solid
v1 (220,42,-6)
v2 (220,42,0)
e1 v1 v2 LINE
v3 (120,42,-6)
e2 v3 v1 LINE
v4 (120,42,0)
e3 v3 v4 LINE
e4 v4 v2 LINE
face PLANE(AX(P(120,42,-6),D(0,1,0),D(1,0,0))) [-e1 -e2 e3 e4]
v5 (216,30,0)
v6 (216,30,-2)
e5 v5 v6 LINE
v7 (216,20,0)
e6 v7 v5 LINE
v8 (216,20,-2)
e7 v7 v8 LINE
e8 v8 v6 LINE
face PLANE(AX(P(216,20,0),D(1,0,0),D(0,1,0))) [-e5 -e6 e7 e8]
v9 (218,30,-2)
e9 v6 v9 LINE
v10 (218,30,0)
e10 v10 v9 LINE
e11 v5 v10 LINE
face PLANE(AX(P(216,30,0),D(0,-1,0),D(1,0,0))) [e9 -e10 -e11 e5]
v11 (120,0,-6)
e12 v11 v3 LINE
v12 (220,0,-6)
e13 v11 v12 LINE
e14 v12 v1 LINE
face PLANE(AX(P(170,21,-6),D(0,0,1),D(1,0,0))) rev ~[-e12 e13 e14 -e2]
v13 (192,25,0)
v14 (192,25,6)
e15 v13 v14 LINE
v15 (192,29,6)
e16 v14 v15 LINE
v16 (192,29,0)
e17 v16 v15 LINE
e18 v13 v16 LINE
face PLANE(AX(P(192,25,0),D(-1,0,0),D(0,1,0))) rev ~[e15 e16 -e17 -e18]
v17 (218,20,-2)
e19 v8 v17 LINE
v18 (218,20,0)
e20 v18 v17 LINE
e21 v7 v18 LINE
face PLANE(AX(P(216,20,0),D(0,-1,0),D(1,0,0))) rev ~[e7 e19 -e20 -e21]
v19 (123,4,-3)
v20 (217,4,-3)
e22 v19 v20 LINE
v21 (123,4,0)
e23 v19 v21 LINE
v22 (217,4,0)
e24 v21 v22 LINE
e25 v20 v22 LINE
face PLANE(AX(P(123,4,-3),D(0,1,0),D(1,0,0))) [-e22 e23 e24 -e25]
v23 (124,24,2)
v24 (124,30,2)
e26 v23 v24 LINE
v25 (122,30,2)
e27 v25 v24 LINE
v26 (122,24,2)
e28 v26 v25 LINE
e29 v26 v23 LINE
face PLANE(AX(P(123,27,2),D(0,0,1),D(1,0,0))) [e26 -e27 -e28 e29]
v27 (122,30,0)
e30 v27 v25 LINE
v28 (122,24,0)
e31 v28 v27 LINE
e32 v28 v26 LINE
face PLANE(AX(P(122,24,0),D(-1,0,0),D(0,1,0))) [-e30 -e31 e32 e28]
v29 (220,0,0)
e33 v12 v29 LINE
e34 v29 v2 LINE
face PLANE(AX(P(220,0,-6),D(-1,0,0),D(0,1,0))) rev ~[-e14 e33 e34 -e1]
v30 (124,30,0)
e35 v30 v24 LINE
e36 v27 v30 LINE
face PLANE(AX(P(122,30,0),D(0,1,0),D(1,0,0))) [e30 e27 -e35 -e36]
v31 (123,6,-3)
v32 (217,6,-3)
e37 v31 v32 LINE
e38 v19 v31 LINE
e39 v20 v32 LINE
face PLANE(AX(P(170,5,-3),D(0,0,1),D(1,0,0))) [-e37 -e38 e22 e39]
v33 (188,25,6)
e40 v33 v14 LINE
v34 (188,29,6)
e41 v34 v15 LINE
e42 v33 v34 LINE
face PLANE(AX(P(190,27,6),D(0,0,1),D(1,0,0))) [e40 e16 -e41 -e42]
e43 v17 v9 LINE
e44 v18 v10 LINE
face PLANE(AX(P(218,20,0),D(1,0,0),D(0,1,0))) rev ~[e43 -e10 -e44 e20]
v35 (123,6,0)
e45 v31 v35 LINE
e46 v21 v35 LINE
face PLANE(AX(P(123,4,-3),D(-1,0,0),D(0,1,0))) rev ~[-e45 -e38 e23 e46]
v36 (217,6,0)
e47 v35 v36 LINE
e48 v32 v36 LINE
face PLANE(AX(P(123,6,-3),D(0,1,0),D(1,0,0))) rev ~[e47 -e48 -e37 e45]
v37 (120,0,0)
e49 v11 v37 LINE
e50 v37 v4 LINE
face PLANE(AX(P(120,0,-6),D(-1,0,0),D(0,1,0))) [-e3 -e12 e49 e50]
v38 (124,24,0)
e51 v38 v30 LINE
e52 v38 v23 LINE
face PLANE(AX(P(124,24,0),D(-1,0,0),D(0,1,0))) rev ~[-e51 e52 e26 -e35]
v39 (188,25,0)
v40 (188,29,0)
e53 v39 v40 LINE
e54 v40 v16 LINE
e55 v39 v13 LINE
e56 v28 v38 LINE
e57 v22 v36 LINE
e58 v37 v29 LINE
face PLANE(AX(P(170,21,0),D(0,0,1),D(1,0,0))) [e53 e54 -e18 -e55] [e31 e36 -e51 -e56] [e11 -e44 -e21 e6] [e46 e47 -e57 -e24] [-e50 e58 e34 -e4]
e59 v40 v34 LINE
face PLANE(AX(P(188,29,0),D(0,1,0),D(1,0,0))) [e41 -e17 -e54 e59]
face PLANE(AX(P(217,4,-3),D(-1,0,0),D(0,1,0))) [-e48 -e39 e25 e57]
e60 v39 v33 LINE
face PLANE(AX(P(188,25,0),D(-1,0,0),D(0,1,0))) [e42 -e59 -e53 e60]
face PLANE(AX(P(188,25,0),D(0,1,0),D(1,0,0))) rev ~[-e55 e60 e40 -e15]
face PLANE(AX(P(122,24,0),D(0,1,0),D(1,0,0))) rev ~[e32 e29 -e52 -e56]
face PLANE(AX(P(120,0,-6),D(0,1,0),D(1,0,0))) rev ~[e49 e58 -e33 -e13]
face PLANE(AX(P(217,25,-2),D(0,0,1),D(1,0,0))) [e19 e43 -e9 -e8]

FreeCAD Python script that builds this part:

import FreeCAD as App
import Part
import Sketcher

V = App.Vector

doc = App.newDocument("Part")
body = doc.addObject("PartDesign::Body", "Body")

# Sketch on XY plane
sketch1 = doc.addObject("Sketcher::SketchObject", "Sketch")
body.addObject(sketch1)
sketch1.AttachmentSupport = (doc.XY_Plane, [""])
sketch1.MapMode = "FlatFace"
sketch1.AttachmentOffset = App.Placement(V(0, 0, -3), App.Rotation())
sketch1.addGeometry([
    Part.LineSegment(V(123, 6, 0), V(123, 4, 0)),
    Part.LineSegment(V(123, 4, 0), V(217, 4, 0)),
    Part.LineSegment(V(217, 4, 0), V(217, 6, 0)),
    Part.LineSegment(V(217, 6, 0), V(123, 6, 0)),
], False)
sketch1.addConstraint([
    Sketcher.Constraint("Coincident", 0, 2, 1, 1),
    Sketcher.Constraint("Coincident", 1, 2, 2, 1),
    Sketcher.Constraint("Coincident", 2, 2, 3, 1),
    Sketcher.Constraint("Coincident", 3, 2, 0, 1),
    Sketcher.Constraint("Vertical", 0),
    Sketcher.Constraint("Horizontal", 1),
    Sketcher.Constraint("Vertical", 2),
    Sketcher.Constraint("Horizontal", 3),
    Sketcher.Constraint("DistanceX", 1, 1, 1, 2, 94.0),
    Sketcher.Constraint("DistanceY", 0, 2, 0, 1, 2.0),
    Sketcher.Constraint("DistanceX", -1, 1, 0, 2, 123.0),
    Sketcher.Constraint("DistanceY", -1, 1, 0, 2, 4.0),
])
pad1 = doc.addObject("PartDesign::Pad", "Pad")
body.addObject(pad1)
pad1.Profile = sketch1
pad1.Length = 3
body2 = doc.addObject("PartDesign::Body", "Body001")

# Sketch on XY plane
sketch2 = doc.addObject("Sketcher::SketchObject", "Sketch001")
body2.addObject(sketch2)
sketch2.AttachmentSupport = (doc.getObject("XY_Plane001"), [""])
sketch2.MapMode = "FlatFace"
sketch2.AttachmentOffset = App.Placement(V(0, 0, -6), App.Rotation())
sketch2.addGeometry([
    Part.LineSegment(V(120, 42, 0), V(120, 0, 0)),
    Part.LineSegment(V(120, 0, 0), V(220, 0, 0)),
    Part.LineSegment(V(220, 0, 0), V(220, 42, 0)),
    Part.LineSegment(V(220, 42, 0), V(120, 42, 0)),
], False)
sketch2.addConstraint([
    Sketcher.Constraint("Coincident", 0, 2, 1, 1),
    Sketcher.Constraint("Coincident", 1, 2, 2, 1),
    Sketcher.Constraint("Coincident", 2, 2, 3, 1),
    Sketcher.Constraint("Coincident", 3, 2, 0, 1),
    Sketcher.Constraint("Vertical", 0),
    Sketcher.Constraint("Horizontal", 1),
    Sketcher.Constraint("Vertical", 2),
    Sketcher.Constraint("Horizontal", 3),
    Sketcher.Constraint("PointOnObject", 0, 2, -1),
    Sketcher.Constraint("DistanceX", 1, 1, 1, 2, 100.0),
    Sketcher.Constraint("DistanceY", 0, 2, 0, 1, 42.0),
    Sketcher.Constraint("DistanceX", -1, 1, 0, 2, 120.0),
])
pad2 = doc.addObject("PartDesign::Pad", "Pad001")
body2.addObject(pad2)
pad2.Profile = sketch2
pad2.Length = 6
doc.recompute()

boolean = doc.addObject("PartDesign::Boolean", "Boolean")
body2.addObject(boolean)
boolean.Type = "Cut"
boolean.addObjects([body])

# Sketch on XY plane
sketch3 = doc.addObject("Sketcher::SketchObject", "Sketch002")
body2.addObject(sketch3)
sketch3.AttachmentSupport = (doc.getObject("XY_Plane001"), [""])
sketch3.MapMode = "FlatFace"
sketch3.addGeometry([
    Part.LineSegment(V(216, 30, 0), V(216, 20, 0)),
    Part.LineSegment(V(216, 20, 0), V(218, 20, 0)),
    Part.LineSegment(V(218, 20, 0), V(218, 30, 0)),
    Part.LineSegment(V(218, 30, 0), V(216, 30, 0)),
], False)
sketch3.addConstraint([
    Sketcher.Constraint("Coincident", 0, 2, 1, 1),
    Sketcher.Constraint("Coincident", 1, 2, 2, 1),
    Sketcher.Constraint("Coincident", 2, 2, 3, 1),
    Sketcher.Constraint("Coincident", 3, 2, 0, 1),
    Sketcher.Constraint("Vertical", 0),
    Sketcher.Constraint("Horizontal", 1),
    Sketcher.Constraint("Vertical", 2),
    Sketcher.Constraint("Horizontal", 3),
    Sketcher.Constraint("DistanceX", 1, 1, 1, 2, 2.0),
    Sketcher.Constraint("DistanceY", 0, 2, 0, 1, 10.0),
    Sketcher.Constraint("DistanceX", -1, 1, 0, 2, 216.0),
    Sketcher.Constraint("DistanceY", -1, 1, 0, 2, 20.0),
])
pocket1 = doc.addObject("PartDesign::Pocket", "Pocket")
body2.addObject(pocket1)
pocket1.Profile = sketch3
pocket1.Length = 2

# Sketch on XY plane
sketch4 = doc.addObject("Sketcher::SketchObject", "Sketch003")
body2.addObject(sketch4)
sketch4.AttachmentSupport = (doc.getObject("XY_Plane001"), [""])
sketch4.MapMode = "FlatFace"
sketch4.addGeometry([
    Part.LineSegment(V(122, 30, 0), V(122, 24, 0)),
    Part.LineSegment(V(122, 24, 0), V(124, 24, 0)),
    Part.LineSegment(V(124, 24, 0), V(124, 30, 0)),
    Part.LineSegment(V(124, 30, 0), V(122, 30, 0)),
], False)
sketch4.addConstraint([
    Sketcher.Constraint("Coincident", 0, 2, 1, 1),
    Sketcher.Constraint("Coincident", 1, 2, 2, 1),
    Sketcher.Constraint("Coincident", 2, 2, 3, 1),
    Sketcher.Constraint("Coincident", 3, 2, 0, 1),
    Sketcher.Constraint("Vertical", 0),
    Sketcher.Constraint("Horizontal", 1),
    Sketcher.Constraint("Vertical", 2),
    Sketcher.Constraint("Horizontal", 3),
    Sketcher.Constraint("DistanceX", 1, 1, 1, 2, 2.0),
    Sketcher.Constraint("DistanceY", 0, 2, 0, 1, 6.0),
    Sketcher.Constraint("DistanceX", -1, 1, 0, 2, 122.0),
    Sketcher.Constraint("DistanceY", -1, 1, 0, 2, 24.0),
])
pad3 = doc.addObject("PartDesign::Pad", "Pad002")
body2.addObject(pad3)
pad3.Profile = sketch4
pad3.Length = 2

# Sketch on XY plane
sketch5 = doc.addObject("Sketcher::SketchObject", "Sketch004")
body2.addObject(sketch5)
sketch5.AttachmentSupport = (doc.getObject("XY_Plane001"), [""])
sketch5.MapMode = "FlatFace"
sketch5.addGeometry([
    Part.LineSegment(V(188, 29, 0), V(188, 25, 0)),
    Part.LineSegment(V(188, 25, 0), V(192, 25, 0)),
    Part.LineSegment(V(192, 25, 0), V(192, 29, 0)),
    Part.LineSegment(V(192, 29, 0), V(188, 29, 0)),
], False)
sketch5.addConstraint([
    Sketcher.Constraint("Coincident", 0, 2, 1, 1),
    Sketcher.Constraint("Coincident", 1, 2, 2, 1),
    Sketcher.Constraint("Coincident", 2, 2, 3, 1),
    Sketcher.Constraint("Coincident", 3, 2, 0, 1),
    Sketcher.Constraint("Vertical", 0),
    Sketcher.Constraint("Horizontal", 1),
    Sketcher.Constraint("Vertical", 2),
    Sketcher.Constraint("Horizontal", 3),
    Sketcher.Constraint("Equal", 3, 0),
    Sketcher.Constraint("DistanceX", 1, 1, 1, 2, 4.0),
    Sketcher.Constraint("DistanceX", -1, 1, 0, 2, 188.0),
    Sketcher.Constraint("DistanceY", -1, 1, 0, 2, 25.0),
])
pad4 = doc.addObject("PartDesign::Pad", "Pad003")
body2.addObject(pad4)
pad4.Profile = sketch5
pad4.Length = 6

doc.recompute()
